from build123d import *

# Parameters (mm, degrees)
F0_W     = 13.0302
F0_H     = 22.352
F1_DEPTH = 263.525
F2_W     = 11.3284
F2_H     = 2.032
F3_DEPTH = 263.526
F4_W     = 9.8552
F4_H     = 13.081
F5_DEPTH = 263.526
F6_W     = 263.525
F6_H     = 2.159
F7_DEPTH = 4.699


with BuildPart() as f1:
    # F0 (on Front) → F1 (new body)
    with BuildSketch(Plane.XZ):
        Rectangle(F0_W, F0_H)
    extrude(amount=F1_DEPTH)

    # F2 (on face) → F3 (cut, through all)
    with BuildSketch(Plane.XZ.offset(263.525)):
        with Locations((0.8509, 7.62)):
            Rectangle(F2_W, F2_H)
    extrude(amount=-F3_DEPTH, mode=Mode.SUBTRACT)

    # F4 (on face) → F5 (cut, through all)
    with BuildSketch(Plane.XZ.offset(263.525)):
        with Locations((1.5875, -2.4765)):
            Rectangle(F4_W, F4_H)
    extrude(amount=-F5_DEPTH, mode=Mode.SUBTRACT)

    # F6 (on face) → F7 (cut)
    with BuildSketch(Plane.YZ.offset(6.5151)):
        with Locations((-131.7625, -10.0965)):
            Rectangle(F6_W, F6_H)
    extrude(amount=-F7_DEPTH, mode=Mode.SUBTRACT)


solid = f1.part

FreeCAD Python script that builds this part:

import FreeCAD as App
import Part
import Sketcher
from FreeCAD import Vector
Q = App.Units.Quantity

doc = App.newDocument("Part")
body = doc.addObject("PartDesign::Body", "Body")

# Sketch on XZ plane
sketch1 = doc.addObject("Sketcher::SketchObject", "Sketch")
body.addObject(sketch1)
sketch1.AttachmentSupport = (doc.XZ_Plane, [""])
sketch1.MapMode = "FlatFace"
sketch1.addGeometry([
    Part.LineSegment(Vector(-7, 11, 0), Vector(-7, -11, 0)),
    Part.LineSegment(Vector(-7, -11, 0), Vector(7, -11, 0)),
    Part.LineSegment(Vector(7, -11, 0), Vector(7, 11, 0)),
    Part.LineSegment(Vector(7, 11, 0), Vector(-7, 11, 0)),
], False)
sketch1.addConstraint([
    Sketcher.Constraint("Coincident", 0, 2, 1, 1),
    Sketcher.Constraint("Coincident", 1, 2, 2, 1),
    Sketcher.Constraint("Coincident", 2, 2, 3, 1),
    Sketcher.Constraint("Coincident", 3, 2, 0, 1),
    Sketcher.Constraint("Vertical", 0),
    Sketcher.Constraint("Horizontal", 1),
    Sketcher.Constraint("Vertical", 2),
    Sketcher.Constraint("Horizontal", 3),
    Sketcher.Constraint("Symmetric", 0, 2, 2, 2, -1, 1),
    Sketcher.Constraint("DistanceY", 0, 2, 0, 1, Q("0.88 in")),
    Sketcher.Constraint("DistanceX", 1, 1, 1, 2, Q("0.513 in")),
])
pad1 = doc.addObject("PartDesign::Pad", "Pad")
body.addObject(pad1)
pad1.Profile = sketch1
pad1.Length = Q("10.375 in")

# Sketch on XZ plane
sketch2 = doc.addObject("Sketcher::SketchObject", "Sketch001")
body.addObject(sketch2)
sketch2.AttachmentSupport = (doc.XZ_Plane, [""])
sketch2.MapMode = "FlatFace"
sketch2.AttachmentOffset = App.Placement(Vector(0, 0, 10.375 * 25.4), App.Rotation())
sketch2.addGeometry([
    Part.LineSegment(Vector(-4.8, 8.6, 0), Vector(-4.8, 6.6, 0)),
    Part.LineSegment(Vector(-4.8, 6.6, 0), Vector(6.5, 6.6, 0)),
    Part.LineSegment(Vector(6.5, 6.6, 0), Vector(6.5, 8.6, 0)),
    Part.LineSegment(Vector(6.5, 8.6, 0), Vector(-4.8, 8.6, 0)),
], False)
sketch2.addConstraint([
    Sketcher.Constraint("Coincident", 0, 2, 1, 1),
    Sketcher.Constraint("Coincident", 1, 2, 2, 1),
    Sketcher.Constraint("Coincident", 2, 2, 3, 1),
    Sketcher.Constraint("Coincident", 3, 2, 0, 1),
    Sketcher.Constraint("Vertical", 0),
    Sketcher.Constraint("Horizontal", 1),
    Sketcher.Constraint("Vertical", 2),
    Sketcher.Constraint("Horizontal", 3),
    Sketcher.Constraint("DistanceY", 0, 2, 0, 1, Q("0.08 in")),
    Sketcher.Constraint("DistanceX", 1, 1, 1, 2, Q("0.446 in")),
    Sketcher.Constraint("DistanceY", -1, 1, 0, 2, Q("0.26 in")),
    Sketcher.Constraint("DistanceX", 0, 2, -1, 1, Q("0.1895 in")),
])
pocket1 = doc.addObject("PartDesign::Pocket", "Pocket")
body.addObject(pocket1)
pocket1.Profile = sketch2
pocket1.Type = "ThroughAll"

# Sketch on XZ plane
sketch3 = doc.addObject("Sketcher::SketchObject", "Sketch002")
body.addObject(sketch3)
sketch3.AttachmentSupport = (doc.XZ_Plane, [""])
sketch3.MapMode = "FlatFace"
sketch3.AttachmentOffset = App.Placement(Vector(0, 0, 10.375 * 25.4), App.Rotation())
sketch3.addGeometry([
    Part.LineSegment(Vector(-3, 4, 0), Vector(-3, -9, 0)),
    Part.LineSegment(Vector(-3, -9, 0), Vector(7, -9, 0)),
    Part.LineSegment(Vector(7, -9, 0), Vector(7, 4, 0)),
    Part.LineSegment(Vector(7, 4, 0), Vector(-3, 4, 0)),
], False)
sketch3.addConstraint([
    Sketcher.Constraint("Coincident", 0, 2, 1, 1),
    Sketcher.Constraint("Coincident", 1, 2, 2, 1),
    Sketcher.Constraint("Coincident", 2, 2, 3, 1),
    Sketcher.Constraint("Coincident", 3, 2, 0, 1),
    Sketcher.Constraint("Vertical", 0),
    Sketcher.Constraint("Horizontal", 1),
    Sketcher.Constraint("Vertical", 2),
    Sketcher.Constraint("Horizontal", 3),
    Sketcher.Constraint("DistanceX", 1, 1, 1, 2, Q("0.388 in")),
    Sketcher.Constraint("DistanceY", 0, 2, 0, 1, Q("0.515 in")),
    Sketcher.Constraint("DistanceY", -1, 1, 2, 2, Q("0.16 in")),
    Sketcher.Constraint("DistanceX", 0, 2, -1, 1, Q("0.1315 in")),
])
pocket2 = doc.addObject("PartDesign::Pocket", "Pocket001")
body.addObject(pocket2)
pocket2.Profile = sketch3
pocket2.Type = "ThroughAll"

# Sketch on YZ plane
sketch4 = doc.addObject("Sketcher::SketchObject", "Sketch003")
body.addObject(sketch4)
sketch4.AttachmentSupport = (doc.YZ_Plane, [""])
sketch4.MapMode = "FlatFace"
sketch4.AttachmentOffset = App.Placement(Vector(0, 0, 0.2565 * 25.4), App.Rotation())
sketch4.addGeometry([
    Part.LineSegment(Vector(-263.5, -9, 0), Vector(-263.5, -11.2, 0)),
    Part.LineSegment(Vector(-263.5, -11.2, 0), Vector(0, -11.2, 0)),
    Part.LineSegment(Vector(0, -11.2, 0), Vector(0, -9, 0)),
    Part.LineSegment(Vector(0, -9, 0), Vector(-263.5, -9, 0)),
], False)
sketch4.addConstraint([
    Sketcher.Constraint("Coincident", 0, 2, 1, 1),
    Sketcher.Constraint("Coincident", 1, 2, 2, 1),
    Sketcher.Constraint("Coincident", 2, 2, 3, 1),
    Sketcher.Constraint("Coincident", 3, 2, 0, 1),
    Sketcher.Constraint("Vertical", 0),
    Sketcher.Constraint("Horizontal", 1),
    Sketcher.Constraint("Vertical", 2),
    Sketcher.Constraint("Horizontal", 3),
    Sketcher.Constraint("PointOnObject", 1, 2, -2),
    Sketcher.Constraint("DistanceX", 1, 1, 1, 2, Q("10.375 in")),
    Sketcher.Constraint("DistanceY", 0, 2, 0, 1, Q("0.085 in")),
    Sketcher.Constraint("DistanceY", 0, 2, -1, 1, Q("0.44 in")),
])
pocket3 = doc.addObject("PartDesign::Pocket", "Pocket002")
body.addObject(pocket3)
pocket3.Profile = sketch4
pocket3.Length = Q("0.185 in")

doc.recompute()
